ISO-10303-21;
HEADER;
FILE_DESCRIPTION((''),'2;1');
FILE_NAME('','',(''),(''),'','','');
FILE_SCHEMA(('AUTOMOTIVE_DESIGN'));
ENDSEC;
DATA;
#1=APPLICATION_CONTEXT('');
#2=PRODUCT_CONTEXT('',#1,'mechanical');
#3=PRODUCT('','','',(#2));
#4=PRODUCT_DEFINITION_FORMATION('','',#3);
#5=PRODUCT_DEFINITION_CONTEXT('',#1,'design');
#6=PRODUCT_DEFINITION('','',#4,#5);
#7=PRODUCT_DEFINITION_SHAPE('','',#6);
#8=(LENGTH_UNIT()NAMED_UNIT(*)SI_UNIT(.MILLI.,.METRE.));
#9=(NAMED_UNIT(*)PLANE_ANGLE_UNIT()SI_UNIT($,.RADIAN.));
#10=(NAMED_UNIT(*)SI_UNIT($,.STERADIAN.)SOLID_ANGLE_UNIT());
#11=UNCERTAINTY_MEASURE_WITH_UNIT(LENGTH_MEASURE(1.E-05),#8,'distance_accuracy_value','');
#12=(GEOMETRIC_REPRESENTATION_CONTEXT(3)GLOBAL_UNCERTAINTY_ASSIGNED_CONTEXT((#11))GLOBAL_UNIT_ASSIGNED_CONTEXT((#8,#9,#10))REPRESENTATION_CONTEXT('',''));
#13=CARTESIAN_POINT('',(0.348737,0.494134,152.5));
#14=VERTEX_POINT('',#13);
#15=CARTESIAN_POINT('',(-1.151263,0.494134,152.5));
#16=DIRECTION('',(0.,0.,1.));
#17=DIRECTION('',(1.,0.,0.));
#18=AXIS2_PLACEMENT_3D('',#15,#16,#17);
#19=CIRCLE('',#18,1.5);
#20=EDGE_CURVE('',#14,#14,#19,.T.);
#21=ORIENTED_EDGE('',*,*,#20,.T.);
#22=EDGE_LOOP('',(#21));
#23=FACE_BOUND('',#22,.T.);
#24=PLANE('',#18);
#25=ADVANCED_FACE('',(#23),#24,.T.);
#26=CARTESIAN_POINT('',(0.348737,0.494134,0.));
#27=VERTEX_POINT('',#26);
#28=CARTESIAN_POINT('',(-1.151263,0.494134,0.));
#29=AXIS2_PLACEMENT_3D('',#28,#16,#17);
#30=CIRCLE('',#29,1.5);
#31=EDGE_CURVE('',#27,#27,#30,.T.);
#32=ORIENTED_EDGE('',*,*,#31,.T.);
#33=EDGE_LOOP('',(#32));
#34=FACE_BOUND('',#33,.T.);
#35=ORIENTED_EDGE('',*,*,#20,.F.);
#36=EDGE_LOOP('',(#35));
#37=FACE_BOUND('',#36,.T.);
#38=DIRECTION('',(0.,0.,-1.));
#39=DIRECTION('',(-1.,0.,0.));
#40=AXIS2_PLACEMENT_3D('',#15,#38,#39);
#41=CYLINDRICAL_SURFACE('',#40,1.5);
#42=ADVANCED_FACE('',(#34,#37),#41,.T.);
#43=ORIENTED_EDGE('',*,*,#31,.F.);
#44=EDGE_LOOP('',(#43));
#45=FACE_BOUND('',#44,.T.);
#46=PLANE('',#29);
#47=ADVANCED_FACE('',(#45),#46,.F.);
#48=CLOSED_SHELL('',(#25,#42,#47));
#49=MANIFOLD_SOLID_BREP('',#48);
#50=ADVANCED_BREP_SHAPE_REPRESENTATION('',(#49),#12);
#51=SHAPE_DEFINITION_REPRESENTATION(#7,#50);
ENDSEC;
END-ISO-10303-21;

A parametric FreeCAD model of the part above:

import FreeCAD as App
import Part
import Sketcher
Q = App.Units.Quantity

doc = App.newDocument("Part")
body = doc.addObject("PartDesign::Body", "Body")

sketch1 = doc.addObject("Sketcher::SketchObject", "Sketch")
body.addObject(sketch1)
sketch1.AttachmentSupport = (doc.XY_Plane, [""])
sketch1.MapMode = "FlatFace"
sketch1.addGeometry(Part.Circle(App.Vector(-1.151263, 0.494134, 0), App.Vector(0, 0, 1), 1.5), False)
sketch1.addConstraint(Sketcher.Constraint("Diameter", 0, Q("3 mm")))
sketch1.addConstraint(Sketcher.Constraint("DistanceX", 0, 3, -1, 1, Q("1.151263 mm")))
sketch1.addConstraint(Sketcher.Constraint("DistanceY", -1, 1, 0, 3, Q("0.494134 mm")))
pad1 = doc.addObject("PartDesign::Pad", "Pad")
body.addObject(pad1)
pad1.Profile = sketch1
pad1.Length = 152.5

doc.recompute()
